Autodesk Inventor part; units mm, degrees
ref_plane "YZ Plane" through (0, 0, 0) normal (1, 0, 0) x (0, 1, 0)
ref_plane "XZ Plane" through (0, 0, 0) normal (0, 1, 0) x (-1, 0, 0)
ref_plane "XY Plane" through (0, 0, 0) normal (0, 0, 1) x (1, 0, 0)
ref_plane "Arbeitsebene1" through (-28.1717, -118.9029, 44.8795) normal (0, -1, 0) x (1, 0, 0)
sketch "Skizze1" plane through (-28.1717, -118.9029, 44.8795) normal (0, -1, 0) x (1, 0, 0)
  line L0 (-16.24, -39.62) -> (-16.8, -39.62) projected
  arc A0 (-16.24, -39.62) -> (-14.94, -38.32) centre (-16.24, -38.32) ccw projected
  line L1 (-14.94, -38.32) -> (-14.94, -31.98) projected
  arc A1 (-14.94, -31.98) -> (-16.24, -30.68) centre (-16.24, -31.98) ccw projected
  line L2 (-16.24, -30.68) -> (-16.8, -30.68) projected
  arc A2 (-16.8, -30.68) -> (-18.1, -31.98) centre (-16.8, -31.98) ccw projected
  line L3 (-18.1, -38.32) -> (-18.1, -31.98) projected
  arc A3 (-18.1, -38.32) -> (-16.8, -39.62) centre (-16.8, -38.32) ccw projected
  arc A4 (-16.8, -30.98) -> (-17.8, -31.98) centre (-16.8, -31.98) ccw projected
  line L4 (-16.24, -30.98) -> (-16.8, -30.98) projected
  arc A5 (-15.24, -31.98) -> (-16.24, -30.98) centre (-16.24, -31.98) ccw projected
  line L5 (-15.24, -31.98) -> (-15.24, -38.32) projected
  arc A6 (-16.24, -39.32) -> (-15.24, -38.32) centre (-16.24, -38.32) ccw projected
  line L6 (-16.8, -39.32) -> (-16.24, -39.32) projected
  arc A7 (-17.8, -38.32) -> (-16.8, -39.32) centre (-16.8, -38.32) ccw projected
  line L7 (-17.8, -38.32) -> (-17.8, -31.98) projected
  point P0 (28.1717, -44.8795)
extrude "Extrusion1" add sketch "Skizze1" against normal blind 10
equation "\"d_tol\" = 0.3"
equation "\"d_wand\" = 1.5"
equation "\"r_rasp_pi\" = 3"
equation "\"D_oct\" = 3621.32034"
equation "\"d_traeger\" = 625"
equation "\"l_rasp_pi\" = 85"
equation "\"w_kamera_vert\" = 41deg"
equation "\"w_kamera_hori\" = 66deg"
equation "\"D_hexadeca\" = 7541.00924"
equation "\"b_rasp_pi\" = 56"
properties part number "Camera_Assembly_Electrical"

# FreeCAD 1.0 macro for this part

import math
import FreeCAD as App
import Part
import Sketcher
Q = App.Units.Quantity

doc = App.newDocument("Part")
params = doc.addObject("Spreadsheet::Sheet", "Params")
for row, (alias, value) in enumerate([
    ("sketch1_radius", "1 mm"),
    ("sketch1_radius2", "1.3 mm"),
    ("sketch1_width", "0.56 mm"),
    ("sketch1_height", "6.34 mm"),
    ("pad1_length", "10 mm"),
], start=1):
    params.set(f"A{row}", alias)
    params.set(f"B{row}", "=" + value)
    params.setAlias(f"B{row}", alias)

body = doc.addObject("PartDesign::Body", "Body")

# Sketch on XZ plane
sketch1 = body.newObject("Sketcher::SketchObject", "Sketch")
sketch1.AttachmentSupport = (doc.getObject("XZ_Plane"), [""])
sketch1.MapMode = "FlatFace"
sketch1.AttachmentOffset = App.Placement(App.Vector(0, 0, 118.9029), App.Rotation())
sketch1.addGeometry([
    Part.LineSegment(App.Vector(-44.9717, 5.2595, 0), App.Vector(-44.4117, 5.2595, 0)),  # 0
    Part.ArcOfCircle(Part.Circle(App.Vector(-44.4117, 6.5595, 0), App.Vector(0, 0, 1), 1.3), math.radians(-90), math.radians(0)),  # 1
    Part.LineSegment(App.Vector(-43.1117, 6.5595, 0), App.Vector(-43.1117, 12.8995, 0)),  # 2
    Part.ArcOfCircle(Part.Circle(App.Vector(-44.4117, 12.8995, 0), App.Vector(0, 0, 1), 1.3), math.radians(0), math.radians(90)),  # 3
    Part.LineSegment(App.Vector(-44.4117, 14.1995, 0), App.Vector(-44.9717, 14.1995, 0)),  # 4
    Part.ArcOfCircle(Part.Circle(App.Vector(-44.9717, 12.8995, 0), App.Vector(0, 0, 1), 1.3), math.radians(90), math.radians(180)),  # 5
    Part.LineSegment(App.Vector(-46.2717, 12.8995, 0), App.Vector(-46.2717, 6.5595, 0)),  # 6
    Part.ArcOfCircle(Part.Circle(App.Vector(-44.9717, 6.5595, 0), App.Vector(0, 0, 1), 1.3), math.radians(180), math.radians(270)),  # 7
    Part.ArcOfCircle(Part.Circle(App.Vector(-44.9717, 12.8995, 0), App.Vector(0, 0, 1), 1), math.radians(90), math.radians(180)),  # 8
    Part.LineSegment(App.Vector(-44.9717, 13.8995, 0), App.Vector(-44.4117, 13.8995, 0)),  # 9
    Part.ArcOfCircle(Part.Circle(App.Vector(-44.4117, 12.8995, 0), App.Vector(0, 0, 1), 1), math.radians(0), math.radians(90)),  # 10
    Part.LineSegment(App.Vector(-43.4117, 12.8995, 0), App.Vector(-43.4117, 6.5595, 0)),  # 11
    Part.ArcOfCircle(Part.Circle(App.Vector(-44.4117, 6.5595, 0), App.Vector(0, 0, 1), 1), math.radians(-90), math.radians(0)),  # 12
    Part.LineSegment(App.Vector(-44.4117, 5.5595, 0), App.Vector(-44.9717, 5.5595, 0)),  # 13
    Part.ArcOfCircle(Part.Circle(App.Vector(-44.9717, 6.5595, 0), App.Vector(0, 0, 1), 1), math.radians(180), math.radians(270)),  # 14
    Part.LineSegment(App.Vector(-45.9717, 6.5595, 0), App.Vector(-45.9717, 12.8995, 0)),  # 15
], False)
sketch1.addConstraint([
    Sketcher.Constraint("Tangent", 0, 2, 1, 1),
    Sketcher.Constraint("Tangent", 1, 2, 2, 1),
    Sketcher.Constraint("Tangent", 2, 2, 3, 1),
    Sketcher.Constraint("Tangent", 3, 2, 4, 1),
    Sketcher.Constraint("Tangent", 4, 2, 5, 1),
    Sketcher.Constraint("Tangent", 5, 2, 6, 1),
    Sketcher.Constraint("Tangent", 6, 2, 7, 1),
    Sketcher.Constraint("Tangent", 7, 2, 0, 1),
    Sketcher.Constraint("Tangent", 8, 1, 9, 1),
    Sketcher.Constraint("Tangent", 9, 2, 10, 2),
    Sketcher.Constraint("Tangent", 10, 1, 11, 1),
    Sketcher.Constraint("Tangent", 11, 2, 12, 2),
    Sketcher.Constraint("Tangent", 12, 1, 13, 1),
    Sketcher.Constraint("Tangent", 13, 2, 14, 2),
    Sketcher.Constraint("Tangent", 14, 1, 15, 1),
    Sketcher.Constraint("Tangent", 15, 2, 8, 2),
    Sketcher.Constraint("Horizontal", 0),
    Sketcher.Constraint("Vertical", 2),
    Sketcher.Constraint("Horizontal", 4),
    Sketcher.Constraint("Vertical", 6),
    Sketcher.Constraint("Horizontal", 9),
    Sketcher.Constraint("Vertical", 11),
    Sketcher.Constraint("Horizontal", 13),
    Sketcher.Constraint("Vertical", 15),
    Sketcher.Constraint("Coincident", 8, 3, 5, 3),
    Sketcher.Constraint("Coincident", 10, 3, 3, 3),
    Sketcher.Constraint("Coincident", 12, 3, 1, 3),
    Sketcher.Constraint("Equal", 1, 3),
    Sketcher.Constraint("Equal", 3, 5),
    Sketcher.Constraint("Equal", 5, 7),
    Sketcher.Constraint("Equal", 12, 14),
    Sketcher.Constraint("Radius", 8, Q("1 mm")),
    Sketcher.Constraint("Radius", 1, Q("1.3 mm")),
    Sketcher.Constraint("DistanceX", 0, 1, 0, 2, Q("0.56 mm")),
    Sketcher.Constraint("DistanceY", 2, 1, 2, 2, Q("6.34 mm")),
    Sketcher.Constraint("DistanceX", 1, 3, -1, 1, Q("44.4117 mm")),
    Sketcher.Constraint("DistanceY", -1, 1, 1, 3, Q("6.5595 mm")),
])
sketch1.setExpression("Constraints[31]", "Params.sketch1_radius")
sketch1.setExpression("Constraints[32]", "Params.sketch1_radius2")
sketch1.setExpression("Constraints[33]", "Params.sketch1_width")
sketch1.setExpression("Constraints[34]", "Params.sketch1_height")
pad1 = body.newObject("PartDesign::Pad", "Pad")
pad1.Profile = sketch1
pad1.setExpression("Length", "Params.pad1_length")
pad1.Reversed = True

doc.recompute()
